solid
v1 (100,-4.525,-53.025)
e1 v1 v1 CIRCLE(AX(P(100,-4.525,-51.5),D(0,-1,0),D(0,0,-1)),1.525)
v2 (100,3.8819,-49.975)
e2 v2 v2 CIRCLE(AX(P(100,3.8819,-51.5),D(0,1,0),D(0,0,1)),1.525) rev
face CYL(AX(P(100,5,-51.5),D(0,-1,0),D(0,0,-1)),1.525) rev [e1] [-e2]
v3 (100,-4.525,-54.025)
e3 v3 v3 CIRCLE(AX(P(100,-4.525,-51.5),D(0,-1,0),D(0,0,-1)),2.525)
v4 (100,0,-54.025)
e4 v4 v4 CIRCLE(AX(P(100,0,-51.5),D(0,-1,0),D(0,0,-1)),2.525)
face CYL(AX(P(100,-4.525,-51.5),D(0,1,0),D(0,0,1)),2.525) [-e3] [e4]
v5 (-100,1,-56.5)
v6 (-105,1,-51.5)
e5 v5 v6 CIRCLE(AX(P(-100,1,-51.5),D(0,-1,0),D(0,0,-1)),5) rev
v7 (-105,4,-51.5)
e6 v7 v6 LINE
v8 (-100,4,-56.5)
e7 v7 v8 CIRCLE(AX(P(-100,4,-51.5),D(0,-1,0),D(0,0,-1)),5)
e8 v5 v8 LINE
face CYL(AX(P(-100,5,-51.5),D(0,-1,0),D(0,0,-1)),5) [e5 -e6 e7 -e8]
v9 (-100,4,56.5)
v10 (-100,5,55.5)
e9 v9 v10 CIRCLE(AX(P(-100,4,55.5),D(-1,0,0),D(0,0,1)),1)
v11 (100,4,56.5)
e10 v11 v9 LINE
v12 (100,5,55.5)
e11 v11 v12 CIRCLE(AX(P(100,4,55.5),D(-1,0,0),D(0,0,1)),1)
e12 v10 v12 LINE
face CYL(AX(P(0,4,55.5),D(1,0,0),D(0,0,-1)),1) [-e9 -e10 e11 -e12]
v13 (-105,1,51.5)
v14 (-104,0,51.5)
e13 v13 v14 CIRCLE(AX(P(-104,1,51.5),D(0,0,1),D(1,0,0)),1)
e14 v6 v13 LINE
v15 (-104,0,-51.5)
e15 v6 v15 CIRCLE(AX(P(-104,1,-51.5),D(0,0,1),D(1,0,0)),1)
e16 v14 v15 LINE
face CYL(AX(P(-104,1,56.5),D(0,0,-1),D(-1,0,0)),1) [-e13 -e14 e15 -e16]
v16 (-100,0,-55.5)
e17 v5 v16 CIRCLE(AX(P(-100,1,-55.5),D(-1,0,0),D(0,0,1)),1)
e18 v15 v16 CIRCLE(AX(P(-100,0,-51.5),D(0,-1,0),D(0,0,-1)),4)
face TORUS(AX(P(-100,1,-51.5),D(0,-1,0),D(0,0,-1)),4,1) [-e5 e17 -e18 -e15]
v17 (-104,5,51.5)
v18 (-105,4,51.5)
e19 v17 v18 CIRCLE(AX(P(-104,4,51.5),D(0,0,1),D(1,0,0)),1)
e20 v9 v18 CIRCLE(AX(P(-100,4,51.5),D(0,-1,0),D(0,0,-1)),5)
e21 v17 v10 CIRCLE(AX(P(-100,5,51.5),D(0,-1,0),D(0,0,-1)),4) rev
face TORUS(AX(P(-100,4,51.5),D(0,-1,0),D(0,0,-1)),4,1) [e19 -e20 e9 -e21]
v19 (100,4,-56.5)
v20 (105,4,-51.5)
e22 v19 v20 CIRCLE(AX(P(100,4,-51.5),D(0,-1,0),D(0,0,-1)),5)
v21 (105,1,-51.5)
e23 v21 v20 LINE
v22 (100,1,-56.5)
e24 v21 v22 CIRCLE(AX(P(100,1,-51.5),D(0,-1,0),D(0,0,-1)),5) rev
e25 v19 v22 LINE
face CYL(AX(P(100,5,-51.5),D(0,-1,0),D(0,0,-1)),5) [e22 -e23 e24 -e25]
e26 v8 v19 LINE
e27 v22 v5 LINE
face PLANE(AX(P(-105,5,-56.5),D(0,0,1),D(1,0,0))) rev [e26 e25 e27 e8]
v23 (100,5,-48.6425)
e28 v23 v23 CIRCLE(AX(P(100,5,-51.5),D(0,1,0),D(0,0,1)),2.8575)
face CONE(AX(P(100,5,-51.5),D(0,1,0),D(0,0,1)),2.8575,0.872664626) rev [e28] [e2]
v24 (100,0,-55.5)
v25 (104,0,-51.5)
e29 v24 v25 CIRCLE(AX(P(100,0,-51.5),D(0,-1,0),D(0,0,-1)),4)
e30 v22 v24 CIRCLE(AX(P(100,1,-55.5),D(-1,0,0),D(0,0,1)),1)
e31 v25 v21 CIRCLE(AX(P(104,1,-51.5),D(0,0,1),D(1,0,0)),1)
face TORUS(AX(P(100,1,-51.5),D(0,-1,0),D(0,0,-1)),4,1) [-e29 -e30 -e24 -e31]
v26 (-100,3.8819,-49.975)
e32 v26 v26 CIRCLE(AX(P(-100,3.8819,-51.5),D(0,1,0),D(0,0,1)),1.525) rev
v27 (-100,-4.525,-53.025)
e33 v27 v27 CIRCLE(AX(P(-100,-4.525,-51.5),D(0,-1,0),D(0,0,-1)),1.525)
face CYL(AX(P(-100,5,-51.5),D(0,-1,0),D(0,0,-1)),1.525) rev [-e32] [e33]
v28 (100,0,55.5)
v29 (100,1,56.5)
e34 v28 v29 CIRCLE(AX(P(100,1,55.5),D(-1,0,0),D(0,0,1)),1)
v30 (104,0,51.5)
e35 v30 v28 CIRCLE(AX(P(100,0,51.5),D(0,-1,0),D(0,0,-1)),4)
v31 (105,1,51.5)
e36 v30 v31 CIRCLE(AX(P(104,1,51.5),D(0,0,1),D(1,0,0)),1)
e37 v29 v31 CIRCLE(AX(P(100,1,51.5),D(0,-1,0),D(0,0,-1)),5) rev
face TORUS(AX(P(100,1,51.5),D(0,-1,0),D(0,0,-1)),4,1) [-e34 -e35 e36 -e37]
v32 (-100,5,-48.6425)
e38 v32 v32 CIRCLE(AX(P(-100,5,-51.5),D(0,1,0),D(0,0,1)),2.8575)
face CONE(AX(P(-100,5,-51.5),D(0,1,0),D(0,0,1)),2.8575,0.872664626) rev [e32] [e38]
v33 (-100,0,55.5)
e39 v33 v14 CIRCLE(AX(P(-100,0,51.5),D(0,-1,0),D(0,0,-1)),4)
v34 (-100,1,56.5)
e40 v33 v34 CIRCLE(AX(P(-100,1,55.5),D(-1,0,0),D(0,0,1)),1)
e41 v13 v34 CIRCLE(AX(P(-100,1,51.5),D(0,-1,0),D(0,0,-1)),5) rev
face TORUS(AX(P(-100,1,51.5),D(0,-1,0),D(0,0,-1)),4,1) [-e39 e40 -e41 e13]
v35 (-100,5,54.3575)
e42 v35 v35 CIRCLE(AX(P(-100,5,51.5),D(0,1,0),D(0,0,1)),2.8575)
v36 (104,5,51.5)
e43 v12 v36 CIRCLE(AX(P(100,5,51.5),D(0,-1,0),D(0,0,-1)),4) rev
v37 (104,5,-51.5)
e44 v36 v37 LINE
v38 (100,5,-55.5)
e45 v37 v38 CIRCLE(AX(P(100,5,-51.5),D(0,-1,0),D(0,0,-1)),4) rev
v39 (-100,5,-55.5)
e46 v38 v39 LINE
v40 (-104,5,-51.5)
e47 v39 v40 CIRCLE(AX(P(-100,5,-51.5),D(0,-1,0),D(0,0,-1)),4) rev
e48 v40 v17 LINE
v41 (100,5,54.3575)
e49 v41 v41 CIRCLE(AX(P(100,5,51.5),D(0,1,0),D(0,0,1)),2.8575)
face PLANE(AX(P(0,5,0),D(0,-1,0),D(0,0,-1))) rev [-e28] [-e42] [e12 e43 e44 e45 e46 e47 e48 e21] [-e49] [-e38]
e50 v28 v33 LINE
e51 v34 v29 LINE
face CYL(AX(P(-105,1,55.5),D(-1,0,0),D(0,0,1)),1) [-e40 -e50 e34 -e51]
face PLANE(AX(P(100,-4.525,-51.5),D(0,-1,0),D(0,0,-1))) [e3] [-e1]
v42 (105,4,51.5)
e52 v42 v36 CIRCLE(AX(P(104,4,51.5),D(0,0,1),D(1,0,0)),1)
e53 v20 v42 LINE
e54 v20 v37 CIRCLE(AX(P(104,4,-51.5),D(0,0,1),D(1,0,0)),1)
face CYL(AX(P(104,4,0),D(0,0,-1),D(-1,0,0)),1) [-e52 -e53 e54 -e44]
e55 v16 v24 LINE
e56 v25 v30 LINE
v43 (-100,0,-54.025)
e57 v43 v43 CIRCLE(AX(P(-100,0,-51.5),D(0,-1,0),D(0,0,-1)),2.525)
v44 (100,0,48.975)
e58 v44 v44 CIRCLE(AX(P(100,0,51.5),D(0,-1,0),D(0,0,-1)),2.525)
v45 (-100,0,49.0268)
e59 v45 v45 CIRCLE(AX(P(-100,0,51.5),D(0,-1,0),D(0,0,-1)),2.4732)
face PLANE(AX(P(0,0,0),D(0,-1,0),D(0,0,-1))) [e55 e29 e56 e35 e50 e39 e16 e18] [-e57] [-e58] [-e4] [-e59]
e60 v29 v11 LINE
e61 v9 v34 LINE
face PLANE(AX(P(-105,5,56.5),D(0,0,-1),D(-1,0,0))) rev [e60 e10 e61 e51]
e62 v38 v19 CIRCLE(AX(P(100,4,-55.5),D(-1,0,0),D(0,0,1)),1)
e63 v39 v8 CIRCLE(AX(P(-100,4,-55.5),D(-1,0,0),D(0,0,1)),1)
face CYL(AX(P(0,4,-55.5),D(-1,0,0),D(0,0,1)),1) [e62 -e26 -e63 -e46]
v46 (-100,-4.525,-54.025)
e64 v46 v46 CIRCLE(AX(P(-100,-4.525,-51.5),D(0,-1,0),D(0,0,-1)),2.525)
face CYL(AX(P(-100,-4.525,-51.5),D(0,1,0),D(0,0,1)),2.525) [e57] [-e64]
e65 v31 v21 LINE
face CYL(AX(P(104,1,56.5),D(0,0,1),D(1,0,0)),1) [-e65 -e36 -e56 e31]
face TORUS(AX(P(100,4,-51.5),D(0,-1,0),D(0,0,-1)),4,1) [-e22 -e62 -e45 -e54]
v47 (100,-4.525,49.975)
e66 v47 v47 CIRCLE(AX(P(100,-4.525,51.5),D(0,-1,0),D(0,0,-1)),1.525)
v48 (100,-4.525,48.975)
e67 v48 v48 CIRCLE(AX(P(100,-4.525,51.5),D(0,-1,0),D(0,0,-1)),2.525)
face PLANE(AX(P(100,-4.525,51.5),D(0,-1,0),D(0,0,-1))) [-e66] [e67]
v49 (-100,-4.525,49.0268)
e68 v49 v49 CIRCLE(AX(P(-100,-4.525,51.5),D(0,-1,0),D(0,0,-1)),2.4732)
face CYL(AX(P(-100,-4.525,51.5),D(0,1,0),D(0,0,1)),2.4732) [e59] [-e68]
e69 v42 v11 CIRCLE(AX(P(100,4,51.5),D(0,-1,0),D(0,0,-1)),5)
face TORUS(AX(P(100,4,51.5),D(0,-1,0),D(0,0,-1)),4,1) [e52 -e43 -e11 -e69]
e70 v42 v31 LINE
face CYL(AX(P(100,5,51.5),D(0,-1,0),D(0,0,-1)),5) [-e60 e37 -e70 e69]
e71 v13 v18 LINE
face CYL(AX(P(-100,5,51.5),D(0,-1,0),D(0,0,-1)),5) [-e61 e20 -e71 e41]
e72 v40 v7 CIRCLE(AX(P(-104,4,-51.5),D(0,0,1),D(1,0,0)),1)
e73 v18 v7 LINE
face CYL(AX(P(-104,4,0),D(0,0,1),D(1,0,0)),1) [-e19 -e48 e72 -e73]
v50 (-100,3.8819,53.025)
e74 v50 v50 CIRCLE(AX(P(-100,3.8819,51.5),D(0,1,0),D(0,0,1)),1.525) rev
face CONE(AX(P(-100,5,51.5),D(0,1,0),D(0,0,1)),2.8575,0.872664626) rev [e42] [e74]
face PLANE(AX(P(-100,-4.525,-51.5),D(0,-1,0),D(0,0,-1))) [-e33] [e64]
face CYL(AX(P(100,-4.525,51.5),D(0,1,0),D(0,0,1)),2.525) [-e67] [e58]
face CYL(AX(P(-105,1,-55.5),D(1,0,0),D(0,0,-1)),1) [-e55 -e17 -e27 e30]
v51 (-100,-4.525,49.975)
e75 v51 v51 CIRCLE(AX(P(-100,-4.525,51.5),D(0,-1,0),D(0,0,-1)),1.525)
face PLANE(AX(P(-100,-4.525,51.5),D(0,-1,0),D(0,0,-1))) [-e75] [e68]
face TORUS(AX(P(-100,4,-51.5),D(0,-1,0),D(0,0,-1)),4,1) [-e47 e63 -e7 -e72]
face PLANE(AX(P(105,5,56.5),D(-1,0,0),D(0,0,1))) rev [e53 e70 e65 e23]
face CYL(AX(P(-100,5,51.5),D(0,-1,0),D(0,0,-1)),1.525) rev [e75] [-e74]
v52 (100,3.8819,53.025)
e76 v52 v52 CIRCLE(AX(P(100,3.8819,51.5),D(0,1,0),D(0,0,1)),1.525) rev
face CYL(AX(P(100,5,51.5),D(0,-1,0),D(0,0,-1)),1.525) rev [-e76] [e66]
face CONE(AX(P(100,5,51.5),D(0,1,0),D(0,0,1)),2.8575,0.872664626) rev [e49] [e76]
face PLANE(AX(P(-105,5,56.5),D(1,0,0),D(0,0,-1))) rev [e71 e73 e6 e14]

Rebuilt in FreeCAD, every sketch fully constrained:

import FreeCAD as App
import Part
import Sketcher
from FreeCAD import Vector


def edges_at(feature, points):
    """Names of the edges that pass closest to the given points."""
    edges = feature.Shape.Edges
    near = lambda p: min(range(len(edges)), key=lambda i: edges[i].distToShape(Part.Vertex(*p))[0])
    return sorted({f"Edge{near(p) + 1}" for p in points})

doc = App.newDocument("Part")
body = doc.addObject("PartDesign::Body", "Body")

sketch1 = body.newObject("Sketcher::SketchObject", "Sketch")
sketch1.AttachmentSupport = (doc.getObject("XZ_Plane"), [""])
sketch1.MapMode = "FlatFace"
sketch1.addGeometry([
    Part.LineSegment(Vector(-105, -56, 0), Vector(-105, 56, 0)),
    Part.LineSegment(Vector(-105, 56, 0), Vector(105, 56, 0)),
    Part.LineSegment(Vector(105, 56, 0), Vector(105, -56, 0)),
    Part.LineSegment(Vector(105, -56, 0), Vector(-105, -56, 0)),
], False)
sketch1.addConstraint([
    Sketcher.Constraint("Coincident", 0, 2, 1, 1),
    Sketcher.Constraint("Coincident", 1, 2, 2, 1),
    Sketcher.Constraint("Coincident", 2, 2, 3, 1),
    Sketcher.Constraint("Coincident", 3, 2, 0, 1),
    Sketcher.Constraint("Vertical", 0),
    Sketcher.Constraint("Horizontal", 1),
    Sketcher.Constraint("Vertical", 2),
    Sketcher.Constraint("Horizontal", 3),
    Sketcher.Constraint("Symmetric", 0, 2, 2, 2, -1, 1),
    Sketcher.Constraint("DistanceX", 1, 1, 1, 2, 210.0),
    Sketcher.Constraint("DistanceY", 0, 1, 0, 2, 113.0),
])
pad1 = body.newObject("PartDesign::Pad", "Pad")
pad1.Profile = sketch1
pad1.Length = 5
pad1.Reversed = True
doc.recompute()

fillet = body.newObject("PartDesign::Fillet", "Fillet")
fillet.Base = (pad1, edges_at(pad1, [
    (105, 2.5, 56.5),
    (-105, 2.5, 56.5),
    (-105, 2.5, -56.5),
    (105, 2.5, -56.5),
]))
fillet.Radius = 5
doc.recompute()

fillet2 = body.newObject("PartDesign::Fillet", "Fillet001")
fillet2.Base = (fillet, edges_at(fillet, [
    (-105, 0, 0),
    (-105, 5, 0),
    (105, 0, 0),
    (0, 0, 56.5),
    (0, 0, -56.5),
    (103.536, 0, -55.036),
    (103.536, 0, 55.036),
    (-103.536, 0, 55.036),
    (-103.536, 0, -55.036),
    (0, 5, -56.5),
    (105, 5, 0),
    (0, 5, 56.5),
    (103.536, 5, -55.036),
    (103.536, 5, 55.036),
    (-103.536, 5, 55.036),
    (-103.536, 5, -55.036),
]))
fillet2.Radius = 1

sketch2 = body.newObject("Sketcher::SketchObject", "Sketch001")
sketch2.AttachmentSupport = (doc.getObject("XZ_Plane"), [""])
sketch2.MapMode = "FlatFace"
sketch2.AttachmentOffset = App.Placement(Vector(0, 0, -5), App.Rotation())
sketch2.addGeometry([
    Part.Circle(Vector(-100, 51.5, 0), Vector(0, 0, 1), 1.5),
    Part.Circle(Vector(100, -51.5, 0), Vector(0, 0, 1), 1.5),
    Part.Circle(Vector(100, 51.5, 0), Vector(0, 0, 1), 1.5),
    Part.Circle(Vector(-100, -51.5, 0), Vector(0, 0, 1), 1.5),
], False)
sketch2.addConstraint([
    Sketcher.Constraint("Equal", 0, 1),
    Sketcher.Constraint("Equal", 1, 2),
    Sketcher.Constraint("Equal", 2, 3),
    Sketcher.Constraint("Symmetric", 0, 3, 1, 3, -1, 1),
    Sketcher.Constraint("Symmetric", 2, 3, 3, 3, -1, 1),
    Sketcher.Constraint("Symmetric", 0, 3, 2, 3, -2),
    Sketcher.Constraint("DistanceX", 0, 3, -1, 1, 100.0),
    Sketcher.Constraint("DistanceY", 1, 3, 0, 3, 103.0),
    Sketcher.Constraint("Diameter", 0, 2.9464),
])
doc.recompute()
hole = body.newObject("PartDesign::Hole", "Hole")
hole.Profile = sketch2
hole.ThreadType = "None"
hole.Diameter = 2.9464
hole.DepthType = "ThroughAll"
hole.HoleCutType = "Countersink"
hole.HoleCutDiameter = 5.715
hole.HoleCutCountersinkAngle = 100
hole.Reversed = True

sketch3 = body.newObject("Sketcher::SketchObject", "Sketch002")
sketch3.AttachmentSupport = (doc.getObject("XZ_Plane"), [""])
sketch3.MapMode = "FlatFace"
sketch3.addGeometry(Part.Circle(Vector(-100, 51.5, 0), Vector(0, 0, 1), 2.5), False)
sketch3.addConstraint([
    Sketcher.Constraint("DistanceX", 0, 3, -1, 1, 100.0),
    Sketcher.Constraint("Diameter", 0, 4.9464),
    Sketcher.Constraint("DistanceY", -1, 1, 0, 3, 51.5),
])
pad2 = body.newObject("PartDesign::Pad", "Pad001")
pad2.Profile = sketch3
pad2.Length = 4.525

sketch4 = body.newObject("Sketcher::SketchObject", "Sketch003")
sketch4.AttachmentSupport = (doc.getObject("XZ_Plane"), [""])
sketch4.MapMode = "FlatFace"
sketch4.AttachmentOffset = App.Placement(Vector(0, 0, 4.525), App.Rotation())
sketch4.addGeometry(Part.Circle(Vector(-100, 51.5, 0), Vector(0, 0, 1), 1.5), False)
sketch4.addConstraint([
    Sketcher.Constraint("Diameter", 0, 3.05),
    Sketcher.Constraint("DistanceX", 0, 3, -1, 1, 100.0),
    Sketcher.Constraint("DistanceY", -1, 1, 0, 3, 51.5),
])
pocket1 = body.newObject("PartDesign::Pocket", "Pocket")
pocket1.Profile = sketch4
pocket1.Type = "ThroughAll"
pocket1.Midplane = True

sketch5 = body.newObject("Sketcher::SketchObject", "Sketch004")
sketch5.AttachmentSupport = (doc.getObject("XZ_Plane"), [""])
sketch5.MapMode = "FlatFace"
sketch5.addGeometry(Part.Circle(Vector(-100, -51.5, 0), Vector(0, 0, 1), 2.5), False)
sketch5.addConstraint([
    Sketcher.Constraint("Diameter", 0, 5.05),
    Sketcher.Constraint("DistanceX", 0, 3, -1, 1, 100.0),
    Sketcher.Constraint("DistanceY", 0, 3, -1, 1, 51.5),
])
pad3 = body.newObject("PartDesign::Pad", "Pad002")
pad3.Profile = sketch5
pad3.Length = 4.525

sketch6 = body.newObject("Sketcher::SketchObject", "Sketch005")
sketch6.AttachmentSupport = (doc.getObject("XZ_Plane"), [""])
sketch6.MapMode = "FlatFace"
sketch6.AttachmentOffset = App.Placement(Vector(0, 0, 4.525), App.Rotation())
sketch6.addGeometry(Part.Circle(Vector(-100, -51.5, 0), Vector(0, 0, 1), 1.5), False)
sketch6.addConstraint([
    Sketcher.Constraint("Diameter", 0, 3.05),
    Sketcher.Constraint("DistanceX", 0, 3, -1, 1, 100.0),
    Sketcher.Constraint("DistanceY", 0, 3, -1, 1, 51.5),
])
pocket2 = body.newObject("PartDesign::Pocket", "Pocket001")
pocket2.Profile = sketch6
pocket2.Type = "ThroughAll"

sketch7 = body.newObject("Sketcher::SketchObject", "Sketch006")
sketch7.AttachmentSupport = (doc.getObject("XZ_Plane"), [""])
sketch7.MapMode = "FlatFace"
sketch7.addGeometry(Part.Circle(Vector(100, 51.5, 0), Vector(0, 0, 1), 2.5), False)
sketch7.addConstraint([
    Sketcher.Constraint("Diameter", 0, 5.05),
    Sketcher.Constraint("DistanceX", -1, 1, 0, 3, 100.0),
    Sketcher.Constraint("DistanceY", -1, 1, 0, 3, 51.5),
])
pad4 = body.newObject("PartDesign::Pad", "Pad003")
pad4.Profile = sketch7
pad4.Length = 4.525

sketch8 = body.newObject("Sketcher::SketchObject", "Sketch007")
sketch8.AttachmentSupport = (doc.getObject("XZ_Plane"), [""])
sketch8.MapMode = "FlatFace"
sketch8.AttachmentOffset = App.Placement(Vector(0, 0, 4.525), App.Rotation())
sketch8.addGeometry(Part.Circle(Vector(100, 51.5, 0), Vector(0, 0, 1), 1.5), False)
sketch8.addConstraint([
    Sketcher.Constraint("Diameter", 0, 3.05),
    Sketcher.Constraint("DistanceX", -1, 1, 0, 3, 100.0),
    Sketcher.Constraint("DistanceY", -1, 1, 0, 3, 51.5),
])
pocket3 = body.newObject("PartDesign::Pocket", "Pocket002")
pocket3.Profile = sketch8
pocket3.Type = "ThroughAll"

sketch9 = body.newObject("Sketcher::SketchObject", "Sketch008")
sketch9.AttachmentSupport = (doc.getObject("XZ_Plane"), [""])
sketch9.MapMode = "FlatFace"
sketch9.addGeometry(Part.Circle(Vector(100, -51.5, 0), Vector(0, 0, 1), 2.5), False)
sketch9.addConstraint([
    Sketcher.Constraint("Diameter", 0, 5.05),
    Sketcher.Constraint("DistanceX", -1, 1, 0, 3, 100.0),
    Sketcher.Constraint("DistanceY", 0, 3, -1, 1, 51.5),
])
pad5 = body.newObject("PartDesign::Pad", "Pad004")
pad5.Profile = sketch9
pad5.Length = 4.525

sketch10 = body.newObject("Sketcher::SketchObject", "Sketch009")
sketch10.AttachmentSupport = (doc.getObject("XZ_Plane"), [""])
sketch10.MapMode = "FlatFace"
sketch10.AttachmentOffset = App.Placement(Vector(0, 0, 4.525), App.Rotation())
sketch10.addGeometry(Part.Circle(Vector(100, -51.5, 0), Vector(0, 0, 1), 1.5), False)
sketch10.addConstraint([
    Sketcher.Constraint("Diameter", 0, 3.05),
    Sketcher.Constraint("DistanceX", -1, 1, 0, 3, 100.0),
    Sketcher.Constraint("DistanceY", 0, 3, -1, 1, 51.5),
])
pocket4 = body.newObject("PartDesign::Pocket", "Pocket003")
pocket4.Profile = sketch10
pocket4.Type = "ThroughAll"

doc.recompute()
